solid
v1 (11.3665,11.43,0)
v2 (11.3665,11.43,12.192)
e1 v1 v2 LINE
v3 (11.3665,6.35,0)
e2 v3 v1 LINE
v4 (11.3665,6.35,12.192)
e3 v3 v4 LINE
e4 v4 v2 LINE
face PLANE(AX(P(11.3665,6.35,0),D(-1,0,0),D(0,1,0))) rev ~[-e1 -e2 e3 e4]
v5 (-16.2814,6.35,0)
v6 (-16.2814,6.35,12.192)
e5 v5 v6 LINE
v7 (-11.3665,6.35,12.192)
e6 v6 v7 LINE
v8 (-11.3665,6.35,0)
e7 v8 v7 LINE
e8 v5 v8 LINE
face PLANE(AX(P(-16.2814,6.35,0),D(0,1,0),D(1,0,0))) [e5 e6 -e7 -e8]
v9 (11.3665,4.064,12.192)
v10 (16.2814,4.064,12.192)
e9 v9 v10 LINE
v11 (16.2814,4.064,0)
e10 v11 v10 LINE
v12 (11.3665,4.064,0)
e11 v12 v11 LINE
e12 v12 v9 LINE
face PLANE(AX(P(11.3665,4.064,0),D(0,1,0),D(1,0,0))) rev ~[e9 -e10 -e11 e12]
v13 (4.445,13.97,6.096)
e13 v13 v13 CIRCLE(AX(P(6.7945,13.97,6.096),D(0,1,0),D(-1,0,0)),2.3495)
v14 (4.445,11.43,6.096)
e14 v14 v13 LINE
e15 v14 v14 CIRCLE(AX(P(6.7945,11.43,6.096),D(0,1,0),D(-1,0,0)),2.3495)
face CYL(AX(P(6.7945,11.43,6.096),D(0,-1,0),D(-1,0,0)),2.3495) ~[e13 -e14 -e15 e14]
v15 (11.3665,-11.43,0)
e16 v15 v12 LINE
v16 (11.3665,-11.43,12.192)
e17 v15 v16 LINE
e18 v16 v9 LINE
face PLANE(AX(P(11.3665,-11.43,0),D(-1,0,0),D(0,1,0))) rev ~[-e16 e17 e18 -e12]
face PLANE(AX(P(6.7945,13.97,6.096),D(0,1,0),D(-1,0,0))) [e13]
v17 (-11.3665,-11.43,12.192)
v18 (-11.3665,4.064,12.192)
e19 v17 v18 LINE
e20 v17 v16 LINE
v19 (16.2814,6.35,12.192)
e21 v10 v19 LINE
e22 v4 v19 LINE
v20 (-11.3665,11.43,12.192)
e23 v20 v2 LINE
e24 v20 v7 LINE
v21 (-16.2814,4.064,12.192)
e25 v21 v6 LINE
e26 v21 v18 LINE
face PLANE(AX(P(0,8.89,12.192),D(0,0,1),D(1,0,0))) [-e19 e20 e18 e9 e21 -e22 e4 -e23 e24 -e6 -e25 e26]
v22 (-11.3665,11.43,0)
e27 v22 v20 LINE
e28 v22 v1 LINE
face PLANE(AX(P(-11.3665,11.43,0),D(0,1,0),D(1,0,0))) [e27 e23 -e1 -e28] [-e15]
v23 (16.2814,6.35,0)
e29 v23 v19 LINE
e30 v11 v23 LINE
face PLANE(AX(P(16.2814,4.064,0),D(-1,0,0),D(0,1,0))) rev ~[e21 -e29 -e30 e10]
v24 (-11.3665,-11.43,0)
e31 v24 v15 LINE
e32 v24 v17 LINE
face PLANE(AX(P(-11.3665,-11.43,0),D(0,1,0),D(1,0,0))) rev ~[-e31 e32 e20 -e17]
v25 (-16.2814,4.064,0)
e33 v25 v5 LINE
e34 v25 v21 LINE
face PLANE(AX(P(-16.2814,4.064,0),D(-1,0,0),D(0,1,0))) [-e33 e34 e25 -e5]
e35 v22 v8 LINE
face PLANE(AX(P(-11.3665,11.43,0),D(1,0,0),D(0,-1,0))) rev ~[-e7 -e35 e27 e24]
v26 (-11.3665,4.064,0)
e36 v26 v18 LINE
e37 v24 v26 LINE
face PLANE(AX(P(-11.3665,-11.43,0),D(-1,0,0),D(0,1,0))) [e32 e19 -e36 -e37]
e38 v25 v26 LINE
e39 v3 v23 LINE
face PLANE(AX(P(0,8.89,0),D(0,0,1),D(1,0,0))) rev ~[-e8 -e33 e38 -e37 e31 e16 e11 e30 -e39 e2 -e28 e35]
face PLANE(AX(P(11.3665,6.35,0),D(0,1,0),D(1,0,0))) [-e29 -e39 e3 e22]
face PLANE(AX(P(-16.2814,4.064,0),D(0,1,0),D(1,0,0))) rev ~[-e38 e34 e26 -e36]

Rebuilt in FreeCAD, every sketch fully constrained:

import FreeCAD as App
import Part
import Sketcher

V = App.Vector
Q = App.Units.Quantity

doc = App.newDocument("Part")
body = doc.addObject("PartDesign::Body", "Body")

sketch1 = doc.addObject("Sketcher::SketchObject", "Sketch")
body.addObject(sketch1)
sketch1.AttachmentSupport = (doc.XY_Plane, [""])
sketch1.MapMode = "FlatFace"
sketch1.addGeometry([
    Part.LineSegment(V(-11.4, 11.4, 0), V(-11.4, 6.3, 0)),
    Part.LineSegment(V(-11.4, 6.3, 0), V(-16.3, 6.3, 0)),
    Part.LineSegment(V(-16.3, 6.3, 0), V(-16.3, 4.1, 0)),
    Part.LineSegment(V(-16.3, 4.1, 0), V(-11.4, 4.1, 0)),
    Part.LineSegment(V(-11.4, 4.1, 0), V(-11.4, -11.4, 0)),
    Part.LineSegment(V(-11.4, -11.4, 0), V(11.4, -11.4, 0)),
    Part.LineSegment(V(11.4, -11.4, 0), V(11.4, 4.1, 0)),
    Part.LineSegment(V(11.4, 4.1, 0), V(16.3, 4.1, 0)),
    Part.LineSegment(V(16.3, 4.1, 0), V(16.3, 6.3, 0)),
    Part.LineSegment(V(16.3, 6.3, 0), V(11.4, 6.3, 0)),
    Part.LineSegment(V(11.4, 6.3, 0), V(11.4, 11.4, 0)),
    Part.LineSegment(V(11.4, 11.4, 0), V(-11.4, 11.4, 0)),
], False)
sketch1.addConstraint([
    Sketcher.Constraint("Coincident", 0, 2, 1, 1),
    Sketcher.Constraint("Coincident", 1, 2, 2, 1),
    Sketcher.Constraint("Coincident", 2, 2, 3, 1),
    Sketcher.Constraint("Coincident", 3, 2, 4, 1),
    Sketcher.Constraint("Coincident", 4, 2, 5, 1),
    Sketcher.Constraint("Coincident", 5, 2, 6, 1),
    Sketcher.Constraint("Coincident", 6, 2, 7, 1),
    Sketcher.Constraint("Coincident", 7, 2, 8, 1),
    Sketcher.Constraint("Coincident", 8, 2, 9, 1),
    Sketcher.Constraint("Coincident", 9, 2, 10, 1),
    Sketcher.Constraint("Coincident", 10, 2, 11, 1),
    Sketcher.Constraint("Coincident", 11, 2, 0, 1),
    Sketcher.Constraint("Vertical", 0),
    Sketcher.Constraint("Horizontal", 1),
    Sketcher.Constraint("Vertical", 2),
    Sketcher.Constraint("Horizontal", 3),
    Sketcher.Constraint("Vertical", 4),
    Sketcher.Constraint("Horizontal", 5),
    Sketcher.Constraint("Vertical", 6),
    Sketcher.Constraint("Horizontal", 7),
    Sketcher.Constraint("Vertical", 8),
    Sketcher.Constraint("Horizontal", 9),
    Sketcher.Constraint("Vertical", 10),
    Sketcher.Constraint("Horizontal", 11),
    Sketcher.Constraint("Symmetric", 4, 2, 10, 2, -1, 1),
    Sketcher.Constraint("Symmetric", 3, 2, 6, 2, -2),
    Sketcher.Constraint("Symmetric", 1, 2, 8, 2, -2),
    Sketcher.Constraint("Vertical", 0, 2, 3, 2),
    Sketcher.Constraint("DistanceY", 0, 2, 0, 1, Q("0.2 in")),
    Sketcher.Constraint("DistanceY", 2, 2, 2, 1, Q("0.09 in")),
    Sketcher.Constraint("DistanceY", 4, 2, 4, 1, Q("0.61 in")),
    Sketcher.Constraint("DistanceX", 5, 1, 5, 2, Q("0.895 in")),
    Sketcher.Constraint("DistanceX", 1, 2, 1, 1, Q("0.1935 in")),
])
pad1 = doc.addObject("PartDesign::Pad", "Pad")
body.addObject(pad1)
pad1.Profile = sketch1
pad1.Length = Q("0.48 in")

sketch2 = doc.addObject("Sketcher::SketchObject", "Sketch001")
body.addObject(sketch2)
sketch2.AttachmentSupport = (doc.XZ_Plane, [""])
sketch2.MapMode = "FlatFace"
sketch2.AttachmentOffset = App.Placement(V(0, 0, -0.45 * 25.4), App.Rotation())
sketch2.addGeometry(Part.Circle(V(6.8, 6.1, 0), V(0, 0, 1), 2.3), False)
sketch2.addConstraint([
    Sketcher.Constraint("Diameter", 0, Q("0.185 in")),
    Sketcher.Constraint("DistanceY", -1, 1, 0, 3, Q("0.24 in")),
    Sketcher.Constraint("DistanceX", -1, 1, 0, 3, Q("0.2675 in")),
])
pad2 = doc.addObject("PartDesign::Pad", "Pad001")
body.addObject(pad2)
pad2.Profile = sketch2
pad2.Length = Q("0.1 in")
pad2.Reversed = True

doc.recompute()
